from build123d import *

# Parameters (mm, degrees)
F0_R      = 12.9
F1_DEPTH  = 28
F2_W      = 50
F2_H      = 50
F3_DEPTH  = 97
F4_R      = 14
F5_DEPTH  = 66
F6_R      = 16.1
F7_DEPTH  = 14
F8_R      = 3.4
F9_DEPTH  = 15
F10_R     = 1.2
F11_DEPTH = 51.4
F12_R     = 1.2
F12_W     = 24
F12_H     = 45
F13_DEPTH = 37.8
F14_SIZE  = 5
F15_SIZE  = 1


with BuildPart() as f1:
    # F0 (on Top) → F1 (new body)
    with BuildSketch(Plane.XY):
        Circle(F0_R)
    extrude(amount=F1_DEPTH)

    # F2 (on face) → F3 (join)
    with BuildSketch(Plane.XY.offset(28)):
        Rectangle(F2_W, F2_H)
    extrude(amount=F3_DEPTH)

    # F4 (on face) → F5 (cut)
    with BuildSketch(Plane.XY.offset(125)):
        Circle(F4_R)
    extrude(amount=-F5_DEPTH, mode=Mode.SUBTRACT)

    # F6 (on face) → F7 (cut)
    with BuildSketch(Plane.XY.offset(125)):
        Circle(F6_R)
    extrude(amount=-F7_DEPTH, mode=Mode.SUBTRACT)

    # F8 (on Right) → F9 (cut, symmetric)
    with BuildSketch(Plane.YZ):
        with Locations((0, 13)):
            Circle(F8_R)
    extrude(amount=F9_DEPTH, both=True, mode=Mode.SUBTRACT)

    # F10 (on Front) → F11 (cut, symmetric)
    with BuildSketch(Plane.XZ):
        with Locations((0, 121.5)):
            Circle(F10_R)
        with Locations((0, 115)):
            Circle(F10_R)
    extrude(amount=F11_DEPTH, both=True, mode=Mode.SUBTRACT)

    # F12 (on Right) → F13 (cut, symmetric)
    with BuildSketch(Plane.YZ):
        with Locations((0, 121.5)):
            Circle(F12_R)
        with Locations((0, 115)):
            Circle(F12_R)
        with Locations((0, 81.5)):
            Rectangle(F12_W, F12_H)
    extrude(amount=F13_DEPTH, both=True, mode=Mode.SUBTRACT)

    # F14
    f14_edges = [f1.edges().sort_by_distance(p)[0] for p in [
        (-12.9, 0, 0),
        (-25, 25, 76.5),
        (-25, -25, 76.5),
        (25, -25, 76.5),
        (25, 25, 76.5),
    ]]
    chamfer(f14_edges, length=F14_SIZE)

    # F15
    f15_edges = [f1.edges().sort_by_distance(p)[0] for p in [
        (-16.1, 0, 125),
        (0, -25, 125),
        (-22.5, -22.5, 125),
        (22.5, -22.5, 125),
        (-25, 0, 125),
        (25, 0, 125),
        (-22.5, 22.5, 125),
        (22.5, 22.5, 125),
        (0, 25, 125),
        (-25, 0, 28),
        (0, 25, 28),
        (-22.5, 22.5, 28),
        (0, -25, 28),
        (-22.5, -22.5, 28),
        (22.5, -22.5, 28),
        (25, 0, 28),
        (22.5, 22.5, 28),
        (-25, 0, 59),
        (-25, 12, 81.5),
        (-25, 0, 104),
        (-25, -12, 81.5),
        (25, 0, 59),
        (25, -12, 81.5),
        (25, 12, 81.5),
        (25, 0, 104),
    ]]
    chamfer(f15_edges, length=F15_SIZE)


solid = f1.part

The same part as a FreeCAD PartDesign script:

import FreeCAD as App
import Part
import Sketcher


def edges_at(feature, points):
    """Names of the edges that pass closest to the given points."""
    edges = feature.Shape.Edges
    near = lambda p: min(range(len(edges)), key=lambda i: edges[i].distToShape(Part.Vertex(*p))[0])
    return sorted({f"Edge{near(p) + 1}" for p in points})

doc = App.newDocument("Part")
body = doc.addObject("PartDesign::Body", "Body")

sketch1 = body.newObject("Sketcher::SketchObject", "Sketch")
sketch1.AttachmentSupport = (doc.getObject("XY_Plane"), [""])
sketch1.MapMode = "FlatFace"
sketch1.addGeometry(Part.Circle(App.Vector(0, 0, 0), App.Vector(0, 0, 1), 13), False)
sketch1.addConstraint([
    Sketcher.Constraint("Coincident", 0, 3, -1, 1),
    Sketcher.Constraint("Diameter", 0, 25.8),
])
pad1 = body.newObject("PartDesign::Pad", "Pad")
pad1.Profile = sketch1
pad1.Length = 28

sketch2 = body.newObject("Sketcher::SketchObject", "Sketch001")
sketch2.AttachmentSupport = (doc.getObject("XY_Plane"), [""])
sketch2.MapMode = "FlatFace"
sketch2.AttachmentOffset = App.Placement(App.Vector(0, 0, 28), App.Rotation())
sketch2.addGeometry([
    Part.LineSegment(App.Vector(-25, 25, 0), App.Vector(-25, -25, 0)),
    Part.LineSegment(App.Vector(-25, -25, 0), App.Vector(25, -25, 0)),
    Part.LineSegment(App.Vector(25, -25, 0), App.Vector(25, 25, 0)),
    Part.LineSegment(App.Vector(25, 25, 0), App.Vector(-25, 25, 0)),
], False)
sketch2.addConstraint([
    Sketcher.Constraint("Coincident", 0, 2, 1, 1),
    Sketcher.Constraint("Coincident", 1, 2, 2, 1),
    Sketcher.Constraint("Coincident", 2, 2, 3, 1),
    Sketcher.Constraint("Coincident", 3, 2, 0, 1),
    Sketcher.Constraint("Vertical", 0),
    Sketcher.Constraint("Horizontal", 1),
    Sketcher.Constraint("Vertical", 2),
    Sketcher.Constraint("Horizontal", 3),
    Sketcher.Constraint("Symmetric", 0, 2, 2, 2, -1, 1),
    Sketcher.Constraint("Equal", 3, 0),
    Sketcher.Constraint("DistanceX", 1, 1, 1, 2, 50.0),
])
pad2 = body.newObject("PartDesign::Pad", "Pad001")
pad2.Profile = sketch2
pad2.Length = 97

sketch3 = body.newObject("Sketcher::SketchObject", "Sketch002")
sketch3.AttachmentSupport = (doc.getObject("XY_Plane"), [""])
sketch3.MapMode = "FlatFace"
sketch3.AttachmentOffset = App.Placement(App.Vector(0, 0, 125), App.Rotation())
sketch3.addGeometry(Part.Circle(App.Vector(0, 0, 0), App.Vector(0, 0, 1), 14), False)
sketch3.addConstraint([
    Sketcher.Constraint("Coincident", 0, 3, -1, 1),
    Sketcher.Constraint("Diameter", 0, 28.0),
])
pocket1 = body.newObject("PartDesign::Pocket", "Pocket")
pocket1.Profile = sketch3
pocket1.Length = 66

sketch4 = body.newObject("Sketcher::SketchObject", "Sketch003")
sketch4.AttachmentSupport = (doc.getObject("XY_Plane"), [""])
sketch4.MapMode = "FlatFace"
sketch4.AttachmentOffset = App.Placement(App.Vector(0, 0, 125), App.Rotation())
sketch4.addGeometry(Part.Circle(App.Vector(0, 0, 0), App.Vector(0, 0, 1), 16), False)
sketch4.addConstraint([
    Sketcher.Constraint("Coincident", 0, 3, -1, 1),
    Sketcher.Constraint("Diameter", 0, 32.2),
])
pocket2 = body.newObject("PartDesign::Pocket", "Pocket001")
pocket2.Profile = sketch4
pocket2.Length = 14

sketch5 = body.newObject("Sketcher::SketchObject", "Sketch004")
sketch5.AttachmentSupport = (doc.getObject("YZ_Plane"), [""])
sketch5.MapMode = "FlatFace"
sketch5.addGeometry(Part.Circle(App.Vector(0, 13, 0), App.Vector(0, 0, 1), 3.4), False)
sketch5.addConstraint([
    Sketcher.Constraint("PointOnObject", 0, 3, -2),
    Sketcher.Constraint("Diameter", 0, 6.8),
    Sketcher.Constraint("DistanceY", -1, 1, 0, 3, 13.0),
])
pocket3 = body.newObject("PartDesign::Pocket", "Pocket002")
pocket3.Profile = sketch5
pocket3.Length = 30
pocket3.Midplane = True

sketch6 = body.newObject("Sketcher::SketchObject", "Sketch005")
sketch6.AttachmentSupport = (doc.getObject("XZ_Plane"), [""])
sketch6.MapMode = "FlatFace"
sketch6.addGeometry([
    Part.Circle(App.Vector(0, 121.5, 0), App.Vector(0, 0, 1), 1.2),
    Part.Circle(App.Vector(0, 115, 0), App.Vector(0, 0, 1), 1.2),
], False)
sketch6.addConstraint([
    Sketcher.Constraint("Equal", 0, 1),
    Sketcher.Constraint("PointOnObject", 0, 3, -2),
    Sketcher.Constraint("PointOnObject", 1, 3, -2),
    Sketcher.Constraint("Diameter", 0, 2.4),
    Sketcher.Constraint("DistanceY", -1, 1, 1, 3, 115.0),
    Sketcher.Constraint("DistanceY", -1, 1, 0, 3, 121.5),
])
pocket4 = body.newObject("PartDesign::Pocket", "Pocket003")
pocket4.Profile = sketch6
pocket4.Length = 102.8
pocket4.Midplane = True

sketch7 = body.newObject("Sketcher::SketchObject", "Sketch006")
sketch7.AttachmentSupport = (doc.getObject("YZ_Plane"), [""])
sketch7.MapMode = "FlatFace"
sketch7.addGeometry([
    Part.Circle(App.Vector(0, 121.5, 0), App.Vector(0, 0, 1), 1.2),
    Part.Circle(App.Vector(0, 115, 0), App.Vector(0, 0, 1), 1.2),
    Part.LineSegment(App.Vector(-12, 104, 0), App.Vector(-12, 59, 0)),
    Part.LineSegment(App.Vector(-12, 59, 0), App.Vector(12, 59, 0)),
    Part.LineSegment(App.Vector(12, 59, 0), App.Vector(12, 104, 0)),
    Part.LineSegment(App.Vector(12, 104, 0), App.Vector(-12, 104, 0)),
], False)
sketch7.addConstraint([
    Sketcher.Constraint("Coincident", 2, 2, 3, 1),
    Sketcher.Constraint("Coincident", 3, 2, 4, 1),
    Sketcher.Constraint("Coincident", 4, 2, 5, 1),
    Sketcher.Constraint("Coincident", 5, 2, 2, 1),
    Sketcher.Constraint("Vertical", 2),
    Sketcher.Constraint("Horizontal", 3),
    Sketcher.Constraint("Vertical", 4),
    Sketcher.Constraint("Horizontal", 5),
    Sketcher.Constraint("Equal", 0, 1),
    Sketcher.Constraint("PointOnObject", 0, 3, -2),
    Sketcher.Constraint("PointOnObject", 1, 3, -2),
    Sketcher.Constraint("Diameter", 0, 2.4),
    Sketcher.Constraint("DistanceX", 3, 1, 3, 2, 24.0),
    Sketcher.Constraint("DistanceY", 2, 2, 2, 1, 45.0),
    Sketcher.Constraint("DistanceY", -1, 1, 1, 3, 115.0),
    Sketcher.Constraint("DistanceX", 2, 2, -1, 1, 12.0),
    Sketcher.Constraint("DistanceY", -1, 1, 2, 2, 59.0),
    Sketcher.Constraint("DistanceY", -1, 1, 0, 3, 121.5),
])
pocket5 = body.newObject("PartDesign::Pocket", "Pocket004")
pocket5.Profile = sketch7
pocket5.Length = 75.6
pocket5.Midplane = True
doc.recompute()

chamfer = body.newObject("PartDesign::Chamfer", "Chamfer")
chamfer.Base = (pocket5, edges_at(pocket5, [
    (-12.9, 0, 0),
    (-25, 25, 76.5),
    (-25, -25, 76.5),
    (25, -25, 76.5),
    (25, 25, 76.5),
]))
chamfer.Size = 5
doc.recompute()

chamfer2 = body.newObject("PartDesign::Chamfer", "Chamfer001")
chamfer2.Base = (chamfer, edges_at(chamfer, [
    (-16.1, 0, 125),
    (0, -25, 125),
    (-22.5, -22.5, 125),
    (22.5, -22.5, 125),
    (-25, 0, 125),
    (25, 0, 125),
    (-22.5, 22.5, 125),
    (22.5, 22.5, 125),
    (0, 25, 125),
    (-25, 0, 28),
    (0, 25, 28),
    (-22.5, 22.5, 28),
    (0, -25, 28),
    (-22.5, -22.5, 28),
    (22.5, -22.5, 28),
    (25, 0, 28),
    (22.5, 22.5, 28),
    (-25, 0, 59),
    (-25, 12, 81.5),
    (-25, 0, 104),
    (-25, -12, 81.5),
    (25, 0, 59),
    (25, -12, 81.5),
    (25, 12, 81.5),
    (25, 0, 104),
]))
chamfer2.Size = 1

doc.recompute()
